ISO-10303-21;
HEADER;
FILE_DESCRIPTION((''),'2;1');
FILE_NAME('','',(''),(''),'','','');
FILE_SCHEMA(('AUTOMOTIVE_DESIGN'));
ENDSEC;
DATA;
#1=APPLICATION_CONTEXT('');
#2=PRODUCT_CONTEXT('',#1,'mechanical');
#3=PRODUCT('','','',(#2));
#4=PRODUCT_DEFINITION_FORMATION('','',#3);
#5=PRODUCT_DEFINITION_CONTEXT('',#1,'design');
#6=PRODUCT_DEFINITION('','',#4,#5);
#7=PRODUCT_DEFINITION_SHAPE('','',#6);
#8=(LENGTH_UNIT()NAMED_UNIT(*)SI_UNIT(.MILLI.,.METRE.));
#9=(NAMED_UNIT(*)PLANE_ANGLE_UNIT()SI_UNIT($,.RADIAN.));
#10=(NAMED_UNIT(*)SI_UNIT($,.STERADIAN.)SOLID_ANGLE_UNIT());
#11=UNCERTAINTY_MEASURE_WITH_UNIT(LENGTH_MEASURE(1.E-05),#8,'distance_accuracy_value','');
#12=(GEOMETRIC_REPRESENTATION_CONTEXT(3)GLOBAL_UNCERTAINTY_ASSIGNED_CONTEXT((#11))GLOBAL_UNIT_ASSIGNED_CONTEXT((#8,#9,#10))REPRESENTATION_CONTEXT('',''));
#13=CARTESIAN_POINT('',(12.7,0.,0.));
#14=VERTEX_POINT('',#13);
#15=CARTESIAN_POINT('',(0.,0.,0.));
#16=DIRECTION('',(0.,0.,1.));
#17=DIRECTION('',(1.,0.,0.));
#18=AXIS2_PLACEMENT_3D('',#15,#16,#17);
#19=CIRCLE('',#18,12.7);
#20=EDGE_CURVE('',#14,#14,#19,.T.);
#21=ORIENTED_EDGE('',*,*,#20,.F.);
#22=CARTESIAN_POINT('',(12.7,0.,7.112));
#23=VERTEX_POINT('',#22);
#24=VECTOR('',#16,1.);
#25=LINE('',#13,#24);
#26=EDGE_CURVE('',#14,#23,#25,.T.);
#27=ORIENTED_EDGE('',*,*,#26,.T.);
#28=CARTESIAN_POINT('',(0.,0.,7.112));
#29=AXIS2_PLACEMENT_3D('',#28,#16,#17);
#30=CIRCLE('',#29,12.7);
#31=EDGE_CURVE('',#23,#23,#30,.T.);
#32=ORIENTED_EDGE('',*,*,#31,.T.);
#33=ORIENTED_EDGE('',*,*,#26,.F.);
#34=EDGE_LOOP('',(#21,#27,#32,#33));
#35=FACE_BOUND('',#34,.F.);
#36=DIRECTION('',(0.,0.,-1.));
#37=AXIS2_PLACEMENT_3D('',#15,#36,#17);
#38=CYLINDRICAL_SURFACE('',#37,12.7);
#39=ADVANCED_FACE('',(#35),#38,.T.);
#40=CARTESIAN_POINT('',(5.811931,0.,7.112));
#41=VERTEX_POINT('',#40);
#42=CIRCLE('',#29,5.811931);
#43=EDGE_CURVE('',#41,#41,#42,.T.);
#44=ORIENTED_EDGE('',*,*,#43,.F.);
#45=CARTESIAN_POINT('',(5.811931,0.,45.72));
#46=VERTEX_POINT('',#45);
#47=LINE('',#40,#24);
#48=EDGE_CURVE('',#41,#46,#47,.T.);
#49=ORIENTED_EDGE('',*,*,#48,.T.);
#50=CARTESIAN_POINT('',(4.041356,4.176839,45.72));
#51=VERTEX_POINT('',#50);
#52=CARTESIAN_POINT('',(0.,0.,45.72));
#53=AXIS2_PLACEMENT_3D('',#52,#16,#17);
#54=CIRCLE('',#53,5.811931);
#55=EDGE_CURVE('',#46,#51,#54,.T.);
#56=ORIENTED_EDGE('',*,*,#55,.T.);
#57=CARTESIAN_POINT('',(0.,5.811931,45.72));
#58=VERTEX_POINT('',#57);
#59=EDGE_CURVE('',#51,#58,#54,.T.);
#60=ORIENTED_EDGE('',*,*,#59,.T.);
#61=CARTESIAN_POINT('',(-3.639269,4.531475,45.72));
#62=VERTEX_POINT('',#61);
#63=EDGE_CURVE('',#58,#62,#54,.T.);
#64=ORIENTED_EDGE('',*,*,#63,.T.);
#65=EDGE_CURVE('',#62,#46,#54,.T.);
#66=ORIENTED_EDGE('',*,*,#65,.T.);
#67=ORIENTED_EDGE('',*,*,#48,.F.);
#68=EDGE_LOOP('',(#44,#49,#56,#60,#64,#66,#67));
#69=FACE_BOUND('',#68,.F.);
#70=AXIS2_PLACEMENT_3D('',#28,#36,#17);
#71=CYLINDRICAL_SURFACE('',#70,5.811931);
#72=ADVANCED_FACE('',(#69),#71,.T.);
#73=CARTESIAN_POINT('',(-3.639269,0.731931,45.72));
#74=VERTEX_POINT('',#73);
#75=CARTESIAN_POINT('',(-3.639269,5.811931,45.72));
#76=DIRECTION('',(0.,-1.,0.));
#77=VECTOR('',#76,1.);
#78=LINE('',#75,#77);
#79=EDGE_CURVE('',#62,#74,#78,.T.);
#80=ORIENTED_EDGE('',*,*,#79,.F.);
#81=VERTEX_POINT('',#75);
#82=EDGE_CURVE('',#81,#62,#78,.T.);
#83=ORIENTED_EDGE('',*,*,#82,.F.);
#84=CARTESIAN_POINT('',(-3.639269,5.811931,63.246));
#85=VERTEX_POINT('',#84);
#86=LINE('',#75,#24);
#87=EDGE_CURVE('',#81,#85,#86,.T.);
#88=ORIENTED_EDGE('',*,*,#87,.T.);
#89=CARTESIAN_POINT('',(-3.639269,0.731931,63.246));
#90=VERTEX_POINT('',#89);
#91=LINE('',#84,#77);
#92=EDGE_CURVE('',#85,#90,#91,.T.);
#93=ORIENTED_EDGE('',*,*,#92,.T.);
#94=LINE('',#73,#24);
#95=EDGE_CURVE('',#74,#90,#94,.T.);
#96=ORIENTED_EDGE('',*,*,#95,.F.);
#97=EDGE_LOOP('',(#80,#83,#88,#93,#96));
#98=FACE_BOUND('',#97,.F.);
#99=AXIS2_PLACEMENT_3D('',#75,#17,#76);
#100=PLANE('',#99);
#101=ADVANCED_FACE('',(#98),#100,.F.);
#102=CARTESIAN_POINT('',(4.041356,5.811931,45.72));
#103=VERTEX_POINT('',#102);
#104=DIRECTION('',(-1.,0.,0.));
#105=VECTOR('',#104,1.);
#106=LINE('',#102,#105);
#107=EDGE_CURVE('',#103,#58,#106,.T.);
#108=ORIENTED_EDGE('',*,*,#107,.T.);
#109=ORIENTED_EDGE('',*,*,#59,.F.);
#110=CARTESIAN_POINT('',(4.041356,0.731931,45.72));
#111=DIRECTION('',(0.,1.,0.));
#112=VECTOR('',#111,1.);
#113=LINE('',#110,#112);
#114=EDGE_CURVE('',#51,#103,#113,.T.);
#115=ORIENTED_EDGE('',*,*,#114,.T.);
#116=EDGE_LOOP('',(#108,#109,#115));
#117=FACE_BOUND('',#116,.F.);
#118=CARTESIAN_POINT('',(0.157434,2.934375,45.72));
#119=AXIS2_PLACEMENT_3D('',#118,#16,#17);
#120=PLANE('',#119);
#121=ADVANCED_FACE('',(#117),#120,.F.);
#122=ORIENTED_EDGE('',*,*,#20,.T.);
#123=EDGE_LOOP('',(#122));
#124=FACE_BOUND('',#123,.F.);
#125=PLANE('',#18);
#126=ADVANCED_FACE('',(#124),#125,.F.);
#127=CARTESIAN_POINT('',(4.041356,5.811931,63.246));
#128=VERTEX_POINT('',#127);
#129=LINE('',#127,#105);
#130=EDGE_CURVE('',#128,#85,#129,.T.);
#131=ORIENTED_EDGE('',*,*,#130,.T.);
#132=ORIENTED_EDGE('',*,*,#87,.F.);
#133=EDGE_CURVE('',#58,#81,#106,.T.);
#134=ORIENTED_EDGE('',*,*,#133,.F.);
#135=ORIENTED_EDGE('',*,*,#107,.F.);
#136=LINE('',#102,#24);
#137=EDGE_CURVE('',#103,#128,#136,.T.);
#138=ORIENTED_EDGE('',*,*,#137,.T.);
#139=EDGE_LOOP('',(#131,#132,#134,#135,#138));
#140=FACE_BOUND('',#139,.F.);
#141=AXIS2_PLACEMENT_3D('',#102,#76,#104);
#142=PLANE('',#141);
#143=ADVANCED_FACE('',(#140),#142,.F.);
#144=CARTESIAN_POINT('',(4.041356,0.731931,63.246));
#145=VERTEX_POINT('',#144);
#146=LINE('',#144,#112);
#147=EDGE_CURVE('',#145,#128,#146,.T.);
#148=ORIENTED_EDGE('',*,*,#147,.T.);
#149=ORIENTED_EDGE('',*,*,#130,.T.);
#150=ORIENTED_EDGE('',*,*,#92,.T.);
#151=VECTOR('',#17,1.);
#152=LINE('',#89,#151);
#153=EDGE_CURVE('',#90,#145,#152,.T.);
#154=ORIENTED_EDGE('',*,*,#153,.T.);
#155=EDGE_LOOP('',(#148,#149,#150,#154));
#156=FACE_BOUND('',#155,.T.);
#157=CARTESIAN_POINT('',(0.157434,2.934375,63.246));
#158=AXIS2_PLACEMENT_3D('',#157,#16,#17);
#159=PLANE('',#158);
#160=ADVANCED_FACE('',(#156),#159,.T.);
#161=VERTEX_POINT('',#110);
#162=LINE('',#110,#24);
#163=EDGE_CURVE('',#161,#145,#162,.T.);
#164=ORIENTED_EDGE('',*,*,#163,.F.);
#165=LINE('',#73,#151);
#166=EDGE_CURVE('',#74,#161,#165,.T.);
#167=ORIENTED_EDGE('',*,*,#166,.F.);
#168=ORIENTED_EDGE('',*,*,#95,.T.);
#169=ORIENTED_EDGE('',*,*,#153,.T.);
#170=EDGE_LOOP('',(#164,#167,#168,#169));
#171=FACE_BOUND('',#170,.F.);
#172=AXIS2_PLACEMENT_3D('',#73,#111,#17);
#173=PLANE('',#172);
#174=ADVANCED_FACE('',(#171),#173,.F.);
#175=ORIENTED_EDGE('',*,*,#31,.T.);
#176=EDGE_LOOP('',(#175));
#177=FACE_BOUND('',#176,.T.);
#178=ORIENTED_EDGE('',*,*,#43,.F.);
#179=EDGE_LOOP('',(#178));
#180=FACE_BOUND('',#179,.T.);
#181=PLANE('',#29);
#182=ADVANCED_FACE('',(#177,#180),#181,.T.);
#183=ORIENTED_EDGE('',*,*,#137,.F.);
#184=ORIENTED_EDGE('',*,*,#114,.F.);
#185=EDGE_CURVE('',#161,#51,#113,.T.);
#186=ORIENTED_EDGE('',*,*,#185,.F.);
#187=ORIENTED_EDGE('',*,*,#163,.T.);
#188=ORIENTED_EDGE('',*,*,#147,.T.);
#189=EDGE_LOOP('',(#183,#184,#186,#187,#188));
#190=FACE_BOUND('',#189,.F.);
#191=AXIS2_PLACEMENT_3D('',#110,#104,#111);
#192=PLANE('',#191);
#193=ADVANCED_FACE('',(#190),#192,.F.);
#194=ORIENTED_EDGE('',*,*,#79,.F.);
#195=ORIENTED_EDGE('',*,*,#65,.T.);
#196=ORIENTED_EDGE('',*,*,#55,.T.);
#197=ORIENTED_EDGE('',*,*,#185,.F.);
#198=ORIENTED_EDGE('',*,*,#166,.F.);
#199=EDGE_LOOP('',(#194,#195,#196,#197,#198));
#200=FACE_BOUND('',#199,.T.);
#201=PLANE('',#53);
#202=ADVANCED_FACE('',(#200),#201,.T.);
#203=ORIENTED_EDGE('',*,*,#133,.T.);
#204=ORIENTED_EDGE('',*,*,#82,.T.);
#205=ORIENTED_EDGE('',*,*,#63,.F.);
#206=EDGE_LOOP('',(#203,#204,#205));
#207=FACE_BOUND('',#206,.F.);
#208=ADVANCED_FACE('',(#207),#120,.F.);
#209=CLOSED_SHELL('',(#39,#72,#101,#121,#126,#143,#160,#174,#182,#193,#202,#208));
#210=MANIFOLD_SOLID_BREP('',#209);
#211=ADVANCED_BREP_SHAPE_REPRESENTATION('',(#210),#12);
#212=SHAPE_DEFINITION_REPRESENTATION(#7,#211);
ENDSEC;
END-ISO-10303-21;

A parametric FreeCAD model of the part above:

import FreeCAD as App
import Part
import Sketcher
from FreeCAD import Vector
Q = App.Units.Quantity

doc = App.newDocument("Part")
body = doc.addObject("PartDesign::Body", "Body")

# Sketch on XY plane
sketch1 = body.newObject("Sketcher::SketchObject", "Sketch")
sketch1.AttachmentSupport = (doc.getObject("XY_Plane"), [""])
sketch1.MapMode = "FlatFace"
sketch1.addGeometry(Part.Circle(Vector(0, 0, 0), Vector(0, 0, 1), 13), False)
sketch1.addConstraint([
    Sketcher.Constraint("Coincident", 0, 3, -1, 1),
    Sketcher.Constraint("Diameter", 0, Q("1 in")),
])
pad1 = body.newObject("PartDesign::Pad", "Pad")
pad1.Profile = sketch1
pad1.Length = Q("0.28 in")

# Sketch on XY plane
sketch2 = body.newObject("Sketcher::SketchObject", "Sketch001")
sketch2.AttachmentSupport = (doc.getObject("XY_Plane"), [""])
sketch2.MapMode = "FlatFace"
sketch2.AttachmentOffset = App.Placement(Vector(0, 0, 0.28 * 25.4), App.Rotation())
sketch2.addGeometry(Part.Circle(Vector(0, 0, 0), Vector(0, 0, 1), 6), False)
sketch2.addConstraint([
    Sketcher.Constraint("Coincident", 0, 3, -1, 1),
    Sketcher.Constraint("Diameter", 0, 11.623862),
])
pad2 = body.newObject("PartDesign::Pad", "Pad001")
pad2.Profile = sketch2
pad2.Length = Q("1.52 in")

# Sketch on XY plane
sketch3 = body.newObject("Sketcher::SketchObject", "Sketch002")
sketch3.AttachmentSupport = (doc.getObject("XY_Plane"), [""])
sketch3.MapMode = "FlatFace"
sketch3.AttachmentOffset = App.Placement(Vector(0, 0, 1.8 * 25.4), App.Rotation())
sketch3.addGeometry([
    Part.LineSegment(Vector(-4, 6, 0), Vector(-4, 1, 0)),
    Part.LineSegment(Vector(-4, 1, 0), Vector(4, 1, 0)),
    Part.LineSegment(Vector(4, 1, 0), Vector(4, 6, 0)),
    Part.LineSegment(Vector(4, 6, 0), Vector(-4, 6, 0)),
], False)
sketch3.addConstraint([
    Sketcher.Constraint("Coincident", 0, 2, 1, 1),
    Sketcher.Constraint("Coincident", 1, 2, 2, 1),
    Sketcher.Constraint("Coincident", 2, 2, 3, 1),
    Sketcher.Constraint("Coincident", 3, 2, 0, 1),
    Sketcher.Constraint("Vertical", 0),
    Sketcher.Constraint("Horizontal", 1),
    Sketcher.Constraint("Vertical", 2),
    Sketcher.Constraint("Horizontal", 3),
    Sketcher.Constraint("DistanceY", 0, 2, 0, 1, Q("0.2 in")),
    Sketcher.Constraint("DistanceX", 1, 1, 1, 2, 7.680625),
    Sketcher.Constraint("DistanceX", 0, 2, -1, 1, 3.639269),
    Sketcher.Constraint("DistanceY", -1, 1, 0, 2, 0.731931),
])
pad3 = body.newObject("PartDesign::Pad", "Pad002")
pad3.Profile = sketch3
pad3.Length = Q("0.69 in")

doc.recompute()
